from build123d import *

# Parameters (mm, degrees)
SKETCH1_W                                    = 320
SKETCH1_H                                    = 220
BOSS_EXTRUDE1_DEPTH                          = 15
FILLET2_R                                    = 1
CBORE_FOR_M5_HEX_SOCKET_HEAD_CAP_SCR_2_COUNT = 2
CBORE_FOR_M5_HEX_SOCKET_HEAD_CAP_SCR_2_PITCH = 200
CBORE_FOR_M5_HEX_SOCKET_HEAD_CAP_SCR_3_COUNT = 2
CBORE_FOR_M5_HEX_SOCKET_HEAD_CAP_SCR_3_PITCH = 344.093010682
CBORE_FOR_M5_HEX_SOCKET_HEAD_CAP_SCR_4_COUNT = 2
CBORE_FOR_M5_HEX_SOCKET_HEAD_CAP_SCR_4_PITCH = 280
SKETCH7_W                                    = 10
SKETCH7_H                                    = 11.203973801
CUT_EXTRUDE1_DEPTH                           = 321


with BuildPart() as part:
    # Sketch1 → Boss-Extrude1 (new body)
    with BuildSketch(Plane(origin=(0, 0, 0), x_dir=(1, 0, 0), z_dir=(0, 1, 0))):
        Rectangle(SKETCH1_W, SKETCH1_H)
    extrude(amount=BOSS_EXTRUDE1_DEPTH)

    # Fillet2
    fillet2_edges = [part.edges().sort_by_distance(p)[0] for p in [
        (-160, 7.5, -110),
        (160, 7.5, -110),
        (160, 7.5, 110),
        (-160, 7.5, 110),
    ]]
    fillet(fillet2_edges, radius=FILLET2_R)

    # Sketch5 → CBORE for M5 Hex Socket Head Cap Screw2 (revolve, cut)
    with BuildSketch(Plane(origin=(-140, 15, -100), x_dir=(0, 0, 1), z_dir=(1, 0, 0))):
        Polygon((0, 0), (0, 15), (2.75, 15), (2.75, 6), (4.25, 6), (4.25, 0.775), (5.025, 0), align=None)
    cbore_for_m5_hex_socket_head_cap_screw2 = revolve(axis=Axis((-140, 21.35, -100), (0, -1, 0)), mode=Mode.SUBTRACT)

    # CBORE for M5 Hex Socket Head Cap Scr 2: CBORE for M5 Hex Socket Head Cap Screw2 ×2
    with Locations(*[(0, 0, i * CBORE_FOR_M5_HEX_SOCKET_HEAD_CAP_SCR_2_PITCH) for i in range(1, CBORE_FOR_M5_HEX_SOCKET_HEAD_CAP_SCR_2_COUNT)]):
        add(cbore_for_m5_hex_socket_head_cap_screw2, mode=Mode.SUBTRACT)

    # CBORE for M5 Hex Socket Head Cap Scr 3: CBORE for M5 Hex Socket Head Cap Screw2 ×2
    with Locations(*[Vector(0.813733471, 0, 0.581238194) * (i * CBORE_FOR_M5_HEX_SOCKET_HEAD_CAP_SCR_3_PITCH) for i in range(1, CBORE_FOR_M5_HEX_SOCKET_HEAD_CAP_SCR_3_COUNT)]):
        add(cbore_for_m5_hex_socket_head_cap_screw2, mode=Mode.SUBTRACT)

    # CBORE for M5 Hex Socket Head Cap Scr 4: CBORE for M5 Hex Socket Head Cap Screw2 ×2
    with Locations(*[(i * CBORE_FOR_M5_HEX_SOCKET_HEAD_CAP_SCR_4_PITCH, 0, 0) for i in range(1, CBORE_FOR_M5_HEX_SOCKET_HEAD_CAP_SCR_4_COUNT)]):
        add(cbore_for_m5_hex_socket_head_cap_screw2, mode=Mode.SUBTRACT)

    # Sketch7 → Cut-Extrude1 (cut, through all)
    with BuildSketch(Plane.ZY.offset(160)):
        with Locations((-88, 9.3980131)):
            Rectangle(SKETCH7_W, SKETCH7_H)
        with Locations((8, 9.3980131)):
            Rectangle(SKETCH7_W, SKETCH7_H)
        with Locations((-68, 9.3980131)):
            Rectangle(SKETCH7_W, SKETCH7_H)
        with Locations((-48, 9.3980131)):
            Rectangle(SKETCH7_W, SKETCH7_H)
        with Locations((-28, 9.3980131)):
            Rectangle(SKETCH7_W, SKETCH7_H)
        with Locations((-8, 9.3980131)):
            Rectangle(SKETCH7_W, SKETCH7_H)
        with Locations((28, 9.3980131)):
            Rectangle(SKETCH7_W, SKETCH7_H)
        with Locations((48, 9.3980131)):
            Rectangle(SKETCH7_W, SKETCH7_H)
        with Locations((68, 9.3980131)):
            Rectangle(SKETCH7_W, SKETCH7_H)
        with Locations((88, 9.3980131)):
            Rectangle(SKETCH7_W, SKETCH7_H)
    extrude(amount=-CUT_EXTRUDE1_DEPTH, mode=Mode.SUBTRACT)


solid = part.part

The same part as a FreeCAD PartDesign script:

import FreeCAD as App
import Part
import Sketcher
Q = App.Units.Quantity


def edges_at(feature, points):
    """Names of the edges that pass closest to the given points."""
    edges = feature.Shape.Edges
    near = lambda p: min(range(len(edges)), key=lambda i: edges[i].distToShape(Part.Vertex(*p))[0])
    return sorted({f"Edge{near(p) + 1}" for p in points})

doc = App.newDocument("Part")
body = doc.addObject("PartDesign::Body", "Body")

sketch1 = body.newObject("Sketcher::SketchObject", "Sketch")
sketch1.AttachmentSupport = (doc.getObject("XZ_Plane"), [""])
sketch1.MapMode = "FlatFace"
sketch1.addGeometry(Part.LineSegment(App.Vector(-160, -110, 0), App.Vector(-160, 110, 0)), False)
sketch1.addGeometry(Part.LineSegment(App.Vector(-160, 110, 0), App.Vector(160, 110, 0)), False)
sketch1.addGeometry(Part.LineSegment(App.Vector(160, 110, 0), App.Vector(160, -110, 0)), False)
sketch1.addGeometry(Part.LineSegment(App.Vector(160, -110, 0), App.Vector(-160, -110, 0)), False)
sketch1.addConstraint(Sketcher.Constraint("Coincident", 0, 2, 1, 1))
sketch1.addConstraint(Sketcher.Constraint("Coincident", 1, 2, 2, 1))
sketch1.addConstraint(Sketcher.Constraint("Coincident", 2, 2, 3, 1))
sketch1.addConstraint(Sketcher.Constraint("Coincident", 3, 2, 0, 1))
sketch1.addConstraint(Sketcher.Constraint("Vertical", 0))
sketch1.addConstraint(Sketcher.Constraint("Horizontal", 1))
sketch1.addConstraint(Sketcher.Constraint("Vertical", 2))
sketch1.addConstraint(Sketcher.Constraint("Horizontal", 3))
sketch1.addConstraint(Sketcher.Constraint("Symmetric", 0, 2, 2, 2, -1, 1))
sketch1.addConstraint(Sketcher.Constraint("DistanceX", 1, 1, 1, 2, 320.0))
sketch1.addConstraint(Sketcher.Constraint("DistanceY", 0, 1, 0, 2, 220.0))
pad1 = body.newObject("PartDesign::Pad", "Pad")
pad1.Profile = sketch1
pad1.Length = 15
pad1.Reversed = True
doc.recompute()

fillet = body.newObject("PartDesign::Fillet", "Fillet")
fillet.Base = (pad1, edges_at(pad1, [
    (-160, 7.5, -110),
    (160, 7.5, -110),
    (160, 7.5, 110),
    (-160, 7.5, 110),
]))
fillet.Radius = 1

sketch2 = body.newObject("Sketcher::SketchObject", "Sketch001")
sketch2.AttachmentSupport = (doc.getObject("YZ_Plane"), [""])
sketch2.MapMode = "FlatFace"
sketch2.AttachmentOffset = App.Placement(App.Vector(0, 0, -140), App.Rotation())
sketch2.addGeometry(Part.LineSegment(App.Vector(0, -100, 0), App.Vector(15, -100, 0)), False)
sketch2.addGeometry(Part.LineSegment(App.Vector(15, -100, 0), App.Vector(15, -95, 0)), False)
sketch2.addGeometry(Part.LineSegment(App.Vector(15, -95, 0), App.Vector(14.2, -95.8, 0)), False)
sketch2.addGeometry(Part.LineSegment(App.Vector(14.2, -95.8, 0), App.Vector(9, -95.8, 0)), False)
sketch2.addGeometry(Part.LineSegment(App.Vector(9, -95.8, 0), App.Vector(9, -97.2, 0)), False)
sketch2.addGeometry(Part.LineSegment(App.Vector(9, -97.2, 0), App.Vector(0, -97.2, 0)), False)
sketch2.addGeometry(Part.LineSegment(App.Vector(0, -97.2, 0), App.Vector(0, -100, 0)), False)
sketch2.addGeometry(Part.LineSegment(App.Vector(15, -100, 0), App.Vector(0, -100, 0)), True)
sketch2.addConstraint(Sketcher.Constraint("Coincident", 0, 2, 1, 1))
sketch2.addConstraint(Sketcher.Constraint("Coincident", 1, 2, 2, 1))
sketch2.addConstraint(Sketcher.Constraint("Coincident", 2, 2, 3, 1))
sketch2.addConstraint(Sketcher.Constraint("Coincident", 3, 2, 4, 1))
sketch2.addConstraint(Sketcher.Constraint("Coincident", 4, 2, 5, 1))
sketch2.addConstraint(Sketcher.Constraint("Coincident", 5, 2, 6, 1))
sketch2.addConstraint(Sketcher.Constraint("Coincident", 6, 2, 0, 1))
sketch2.addConstraint(Sketcher.Constraint("Horizontal", 0))
sketch2.addConstraint(Sketcher.Constraint("Vertical", 1))
sketch2.addConstraint(Sketcher.Constraint("Horizontal", 3))
sketch2.addConstraint(Sketcher.Constraint("Vertical", 4))
sketch2.addConstraint(Sketcher.Constraint("Horizontal", 5))
sketch2.addConstraint(Sketcher.Constraint("Vertical", 6))
sketch2.addConstraint(Sketcher.Constraint("Horizontal", 7))
sketch2.addConstraint(Sketcher.Constraint("Coincident", 7, 1, 0, 2))
sketch2.addConstraint(Sketcher.Constraint("PointOnObject", 5, 2, -2))
sketch2.addConstraint(Sketcher.Constraint("PointOnObject", 7, 2, -2))
sketch2.addConstraint(Sketcher.Constraint("DistanceX", 0, 1, 0, 2, 15.0))
sketch2.addConstraint(Sketcher.Constraint("DistanceX", 5, 2, 5, 1, 9.0))
sketch2.addConstraint(Sketcher.Constraint("Angle", 2, Q("-135 deg")))
sketch2.addConstraint(Sketcher.Constraint("DistanceY", 4, 2, 4, 1, 1.5))
sketch2.addConstraint(Sketcher.Constraint("DistanceY", 0, 2, -1, 1, 100.0))
sketch2.addConstraint(Sketcher.Constraint("DistanceY", 6, 2, 6, 1, 2.75))
sketch2.addConstraint(Sketcher.Constraint("DistanceX", 3, 2, 3, 1, 5.225))
groove = body.newObject("PartDesign::Groove", "Groove")
groove.Profile = sketch2
groove.ReferenceAxis = (sketch2, ["Axis0"])
groove.Angle = 360
doc.recompute()

linearpattern = body.newObject("PartDesign::LinearPattern", "LinearPattern")
linearpattern.Originals = [groove]
linearpattern.Direction = (doc.getObject("Z_Axis"), [""])
linearpattern.Mode = "offset"
linearpattern.Offset = 200
linearpattern.Occurrences = 2
body.Tip = linearpattern
doc.recompute()

datumline = body.newObject("PartDesign::Line", "DatumLine")
datumline.Placement = App.Placement(App.Vector(0, 0, 0), App.Rotation(App.Vector(0, 0, 1), App.Vector(0.813733471, 0, 0.581238194)))
linearpattern2 = body.newObject("PartDesign::LinearPattern", "LinearPattern001")
linearpattern2.Originals = [groove]
linearpattern2.Direction = (datumline, [""])
linearpattern2.Mode = "offset"
linearpattern2.Offset = 344.093011
linearpattern2.Occurrences = 2
body.Tip = linearpattern2
doc.recompute()

linearpattern3 = body.newObject("PartDesign::LinearPattern", "LinearPattern002")
linearpattern3.Originals = [groove]
linearpattern3.Direction = (doc.getObject("X_Axis"), [""])
linearpattern3.Mode = "offset"
linearpattern3.Offset = 280
linearpattern3.Occurrences = 2
body.Tip = linearpattern3

sketch3 = body.newObject("Sketcher::SketchObject", "Sketch002")
sketch3.AttachmentSupport = (doc.getObject("YZ_Plane"), [""])
sketch3.MapMode = "FlatFace"
sketch3.AttachmentOffset = App.Placement(App.Vector(0, 0, -160), App.Rotation())
sketch3.addGeometry(Part.LineSegment(App.Vector(15, -93, 0), App.Vector(4, -93, 0)), False)
sketch3.addGeometry(Part.LineSegment(App.Vector(4, -93, 0), App.Vector(4, -83, 0)), False)
sketch3.addGeometry(Part.LineSegment(App.Vector(4, -83, 0), App.Vector(15, -83, 0)), False)
sketch3.addGeometry(Part.LineSegment(App.Vector(15, -83, 0), App.Vector(15, -93, 0)), False)
sketch3.addGeometry(Part.LineSegment(App.Vector(15, 3, 0), App.Vector(4, 3, 0)), False)
sketch3.addGeometry(Part.LineSegment(App.Vector(4, 3, 0), App.Vector(4, 13, 0)), False)
sketch3.addGeometry(Part.LineSegment(App.Vector(4, 13, 0), App.Vector(15, 13, 0)), False)
sketch3.addGeometry(Part.LineSegment(App.Vector(15, 13, 0), App.Vector(15, 3, 0)), False)
sketch3.addGeometry(Part.LineSegment(App.Vector(15, -73, 0), App.Vector(4, -73, 0)), False)
sketch3.addGeometry(Part.LineSegment(App.Vector(4, -73, 0), App.Vector(4, -63, 0)), False)
sketch3.addGeometry(Part.LineSegment(App.Vector(4, -63, 0), App.Vector(15, -63, 0)), False)
sketch3.addGeometry(Part.LineSegment(App.Vector(15, -63, 0), App.Vector(15, -73, 0)), False)
sketch3.addGeometry(Part.LineSegment(App.Vector(15, -53, 0), App.Vector(4, -53, 0)), False)
sketch3.addGeometry(Part.LineSegment(App.Vector(4, -53, 0), App.Vector(4, -43, 0)), False)
sketch3.addGeometry(Part.LineSegment(App.Vector(4, -43, 0), App.Vector(15, -43, 0)), False)
sketch3.addGeometry(Part.LineSegment(App.Vector(15, -43, 0), App.Vector(15, -53, 0)), False)
sketch3.addGeometry(Part.LineSegment(App.Vector(15, -33, 0), App.Vector(4, -33, 0)), False)
sketch3.addGeometry(Part.LineSegment(App.Vector(4, -33, 0), App.Vector(4, -23, 0)), False)
sketch3.addGeometry(Part.LineSegment(App.Vector(4, -23, 0), App.Vector(15, -23, 0)), False)
sketch3.addGeometry(Part.LineSegment(App.Vector(15, -23, 0), App.Vector(15, -33, 0)), False)
sketch3.addGeometry(Part.LineSegment(App.Vector(15, -13, 0), App.Vector(4, -13, 0)), False)
sketch3.addGeometry(Part.LineSegment(App.Vector(4, -13, 0), App.Vector(4, -3, 0)), False)
sketch3.addGeometry(Part.LineSegment(App.Vector(4, -3, 0), App.Vector(15, -3, 0)), False)
sketch3.addGeometry(Part.LineSegment(App.Vector(15, -3, 0), App.Vector(15, -13, 0)), False)
sketch3.addGeometry(Part.LineSegment(App.Vector(15, 23, 0), App.Vector(4, 23, 0)), False)
sketch3.addGeometry(Part.LineSegment(App.Vector(4, 23, 0), App.Vector(4, 33, 0)), False)
sketch3.addGeometry(Part.LineSegment(App.Vector(4, 33, 0), App.Vector(15, 33, 0)), False)
sketch3.addGeometry(Part.LineSegment(App.Vector(15, 33, 0), App.Vector(15, 23, 0)), False)
sketch3.addGeometry(Part.LineSegment(App.Vector(15, 43, 0), App.Vector(4, 43, 0)), False)
sketch3.addGeometry(Part.LineSegment(App.Vector(4, 43, 0), App.Vector(4, 53, 0)), False)
sketch3.addGeometry(Part.LineSegment(App.Vector(4, 53, 0), App.Vector(15, 53, 0)), False)
sketch3.addGeometry(Part.LineSegment(App.Vector(15, 53, 0), App.Vector(15, 43, 0)), False)
sketch3.addGeometry(Part.LineSegment(App.Vector(15, 63, 0), App.Vector(4, 63, 0)), False)
sketch3.addGeometry(Part.LineSegment(App.Vector(4, 63, 0), App.Vector(4, 73, 0)), False)
sketch3.addGeometry(Part.LineSegment(App.Vector(4, 73, 0), App.Vector(15, 73, 0)), False)
sketch3.addGeometry(Part.LineSegment(App.Vector(15, 73, 0), App.Vector(15, 63, 0)), False)
sketch3.addGeometry(Part.LineSegment(App.Vector(15, 83, 0), App.Vector(4, 83, 0)), False)
sketch3.addGeometry(Part.LineSegment(App.Vector(4, 83, 0), App.Vector(4, 93, 0)), False)
sketch3.addGeometry(Part.LineSegment(App.Vector(4, 93, 0), App.Vector(15, 93, 0)), False)
sketch3.addGeometry(Part.LineSegment(App.Vector(15, 93, 0), App.Vector(15, 83, 0)), False)
sketch3.addConstraint(Sketcher.Constraint("Coincident", 0, 2, 1, 1))
sketch3.addConstraint(Sketcher.Constraint("Coincident", 1, 2, 2, 1))
sketch3.addConstraint(Sketcher.Constraint("Coincident", 2, 2, 3, 1))
sketch3.addConstraint(Sketcher.Constraint("Coincident", 3, 2, 0, 1))
sketch3.addConstraint(Sketcher.Constraint("Coincident", 4, 2, 5, 1))
sketch3.addConstraint(Sketcher.Constraint("Coincident", 5, 2, 6, 1))
sketch3.addConstraint(Sketcher.Constraint("Coincident", 6, 2, 7, 1))
sketch3.addConstraint(Sketcher.Constraint("Coincident", 7, 2, 4, 1))
sketch3.addConstraint(Sketcher.Constraint("Coincident", 8, 2, 9, 1))
sketch3.addConstraint(Sketcher.Constraint("Coincident", 9, 2, 10, 1))
sketch3.addConstraint(Sketcher.Constraint("Coincident", 10, 2, 11, 1))
sketch3.addConstraint(Sketcher.Constraint("Coincident", 11, 2, 8, 1))
sketch3.addConstraint(Sketcher.Constraint("Coincident", 12, 2, 13, 1))
sketch3.addConstraint(Sketcher.Constraint("Coincident", 13, 2, 14, 1))
sketch3.addConstraint(Sketcher.Constraint("Coincident", 14, 2, 15, 1))
sketch3.addConstraint(Sketcher.Constraint("Coincident", 15, 2, 12, 1))
sketch3.addConstraint(Sketcher.Constraint("Coincident", 16, 2, 17, 1))
sketch3.addConstraint(Sketcher.Constraint("Coincident", 17, 2, 18, 1))
sketch3.addConstraint(Sketcher.Constraint("Coincident", 18, 2, 19, 1))
sketch3.addConstraint(Sketcher.Constraint("Coincident", 19, 2, 16, 1))
sketch3.addConstraint(Sketcher.Constraint("Coincident", 20, 2, 21, 1))
sketch3.addConstraint(Sketcher.Constraint("Coincident", 21, 2, 22, 1))
sketch3.addConstraint(Sketcher.Constraint("Coincident", 22, 2, 23, 1))
sketch3.addConstraint(Sketcher.Constraint("Coincident", 23, 2, 20, 1))
sketch3.addConstraint(Sketcher.Constraint("Coincident", 24, 2, 25, 1))
sketch3.addConstraint(Sketcher.Constraint("Coincident", 25, 2, 26, 1))
sketch3.addConstraint(Sketcher.Constraint("Coincident", 26, 2, 27, 1))
sketch3.addConstraint(Sketcher.Constraint("Coincident", 27, 2, 24, 1))
sketch3.addConstraint(Sketcher.Constraint("Coincident", 28, 2, 29, 1))
sketch3.addConstraint(Sketcher.Constraint("Coincident", 29, 2, 30, 1))
sketch3.addConstraint(Sketcher.Constraint("Coincident", 30, 2, 31, 1))
sketch3.addConstraint(Sketcher.Constraint("Coincident", 31, 2, 28, 1))
sketch3.addConstraint(Sketcher.Constraint("Coincident", 32, 2, 33, 1))
sketch3.addConstraint(Sketcher.Constraint("Coincident", 33, 2, 34, 1))
sketch3.addConstraint(Sketcher.Constraint("Coincident", 34, 2, 35, 1))
sketch3.addConstraint(Sketcher.Constraint("Coincident", 35, 2, 32, 1))
sketch3.addConstraint(Sketcher.Constraint("Coincident", 36, 2, 37, 1))
sketch3.addConstraint(Sketcher.Constraint("Coincident", 37, 2, 38, 1))
sketch3.addConstraint(Sketcher.Constraint("Coincident", 38, 2, 39, 1))
sketch3.addConstraint(Sketcher.Constraint("Coincident", 39, 2, 36, 1))
sketch3.addConstraint(Sketcher.Constraint("Horizontal", 0))
sketch3.addConstraint(Sketcher.Constraint("Vertical", 1))
sketch3.addConstraint(Sketcher.Constraint("Horizontal", 2))
sketch3.addConstraint(Sketcher.Constraint("Vertical", 3))
sketch3.addConstraint(Sketcher.Constraint("Horizontal", 4))
sketch3.addConstraint(Sketcher.Constraint("Vertical", 5))
sketch3.addConstraint(Sketcher.Constraint("Horizontal", 6))
sketch3.addConstraint(Sketcher.Constraint("Vertical", 7))
sketch3.addConstraint(Sketcher.Constraint("Horizontal", 8))
sketch3.addConstraint(Sketcher.Constraint("Vertical", 9))
sketch3.addConstraint(Sketcher.Constraint("Horizontal", 10))
sketch3.addConstraint(Sketcher.Constraint("Vertical", 11))
sketch3.addConstraint(Sketcher.Constraint("Horizontal", 12))
sketch3.addConstraint(Sketcher.Constraint("Vertical", 13))
sketch3.addConstraint(Sketcher.Constraint("Horizontal", 14))
sketch3.addConstraint(Sketcher.Constraint("Vertical", 15))
sketch3.addConstraint(Sketcher.Constraint("Horizontal", 16))
sketch3.addConstraint(Sketcher.Constraint("Vertical", 17))
sketch3.addConstraint(Sketcher.Constraint("Horizontal", 18))
sketch3.addConstraint(Sketcher.Constraint("Vertical", 19))
sketch3.addConstraint(Sketcher.Constraint("Horizontal", 20))
sketch3.addConstraint(Sketcher.Constraint("Vertical", 21))
sketch3.addConstraint(Sketcher.Constraint("Horizontal", 22))
sketch3.addConstraint(Sketcher.Constraint("Vertical", 23))
sketch3.addConstraint(Sketcher.Constraint("Horizontal", 24))
sketch3.addConstraint(Sketcher.Constraint("Vertical", 25))
sketch3.addConstraint(Sketcher.Constraint("Horizontal", 26))
sketch3.addConstraint(Sketcher.Constraint("Vertical", 27))
sketch3.addConstraint(Sketcher.Constraint("Horizontal", 28))
sketch3.addConstraint(Sketcher.Constraint("Vertical", 29))
sketch3.addConstraint(Sketcher.Constraint("Horizontal", 30))
sketch3.addConstraint(Sketcher.Constraint("Vertical", 31))
sketch3.addConstraint(Sketcher.Constraint("Horizontal", 32))
sketch3.addConstraint(Sketcher.Constraint("Vertical", 33))
sketch3.addConstraint(Sketcher.Constraint("Horizontal", 34))
sketch3.addConstraint(Sketcher.Constraint("Vertical", 35))
sketch3.addConstraint(Sketcher.Constraint("Horizontal", 36))
sketch3.addConstraint(Sketcher.Constraint("Vertical", 37))
sketch3.addConstraint(Sketcher.Constraint("Horizontal", 38))
sketch3.addConstraint(Sketcher.Constraint("Vertical", 39))
sketch3.addConstraint(Sketcher.Constraint("Symmetric", 5, 2, 20, 2, -1))
sketch3.addConstraint(Sketcher.Constraint("Symmetric", 7, 2, 22, 2, -1))
sketch3.addConstraint(Sketcher.Constraint("Symmetric", 17, 2, 24, 2, -1))
sketch3.addConstraint(Sketcher.Constraint("Symmetric", 19, 2, 26, 2, -1))
sketch3.addConstraint(Sketcher.Constraint("Symmetric", 13, 2, 28, 2, -1))
sketch3.addConstraint(Sketcher.Constraint("Symmetric", 15, 2, 30, 2, -1))
sketch3.addConstraint(Sketcher.Constraint("Symmetric", 9, 2, 32, 2, -1))
sketch3.addConstraint(Sketcher.Constraint("Symmetric", 11, 2, 34, 2, -1))
sketch3.addConstraint(Sketcher.Constraint("Symmetric", 1, 2, 36, 2, -1))
sketch3.addConstraint(Sketcher.Constraint("Symmetric", 3, 2, 38, 2, -1))
sketch3.addConstraint(Sketcher.Constraint("Vertical", 1, 2, 4, 2))
sketch3.addConstraint(Sketcher.Constraint("Vertical", 3, 2, 6, 2))
sketch3.addConstraint(Sketcher.Constraint("Vertical", 5, 2, 8, 2))
sketch3.addConstraint(Sketcher.Constraint("Vertical", 7, 2, 10, 2))
sketch3.addConstraint(Sketcher.Constraint("Vertical", 9, 2, 12, 2))
sketch3.addConstraint(Sketcher.Constraint("Vertical", 11, 2, 14, 2))
sketch3.addConstraint(Sketcher.Constraint("Vertical", 13, 2, 16, 2))
sketch3.addConstraint(Sketcher.Constraint("Vertical", 15, 2, 18, 2))
sketch3.addConstraint(Sketcher.Constraint("Equal", 3, 5))
sketch3.addConstraint(Sketcher.Constraint("Equal", 7, 9))
sketch3.addConstraint(Sketcher.Constraint("Equal", 11, 13))
sketch3.addConstraint(Sketcher.Constraint("Equal", 15, 17))
sketch3.addConstraint(Sketcher.Constraint("DistanceY", 1, 1, 1, 2, 10.0))
sketch3.addConstraint(Sketcher.Constraint("DistanceY", 0, 2, -1, 1, 93.0))
sketch3.addConstraint(Sketcher.Constraint("DistanceX", -1, 1, 2, 2, 15.0))
sketch3.addConstraint(Sketcher.Constraint("DistanceY", -1, 1, 4, 2, 3.0))
sketch3.addConstraint(Sketcher.Constraint("DistanceY", 8, 2, -1, 1, 73.0))
sketch3.addConstraint(Sketcher.Constraint("DistanceY", 12, 2, -1, 1, 53.0))
sketch3.addConstraint(Sketcher.Constraint("DistanceY", 16, 2, -1, 1, 33.0))
sketch3.addConstraint(Sketcher.Constraint("DistanceX", 0, 2, 0, 1, 11.203974))
pocket1 = body.newObject("PartDesign::Pocket", "Pocket")
pocket1.Profile = sketch3
pocket1.Type = "ThroughAll"
pocket1.Reversed = True

doc.recompute()
